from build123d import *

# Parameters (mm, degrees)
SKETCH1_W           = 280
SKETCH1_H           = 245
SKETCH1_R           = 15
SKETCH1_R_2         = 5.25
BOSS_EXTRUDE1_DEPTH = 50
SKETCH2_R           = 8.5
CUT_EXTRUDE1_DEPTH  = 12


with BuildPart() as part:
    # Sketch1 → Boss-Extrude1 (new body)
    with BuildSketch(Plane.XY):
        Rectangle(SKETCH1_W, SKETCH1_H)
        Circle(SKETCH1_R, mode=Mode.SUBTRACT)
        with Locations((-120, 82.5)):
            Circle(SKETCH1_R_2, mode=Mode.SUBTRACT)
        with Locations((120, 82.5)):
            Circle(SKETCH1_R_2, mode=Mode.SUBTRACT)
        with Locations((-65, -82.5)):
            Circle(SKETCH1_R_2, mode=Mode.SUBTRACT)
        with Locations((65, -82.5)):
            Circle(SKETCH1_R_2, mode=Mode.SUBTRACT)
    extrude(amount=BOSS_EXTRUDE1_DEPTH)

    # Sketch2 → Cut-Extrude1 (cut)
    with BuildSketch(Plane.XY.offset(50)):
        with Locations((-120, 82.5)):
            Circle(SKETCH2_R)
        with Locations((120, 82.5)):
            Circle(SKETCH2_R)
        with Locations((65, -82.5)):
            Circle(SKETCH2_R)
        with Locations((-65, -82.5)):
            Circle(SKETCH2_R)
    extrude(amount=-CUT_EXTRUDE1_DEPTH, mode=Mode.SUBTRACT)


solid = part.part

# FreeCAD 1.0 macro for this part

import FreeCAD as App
import Part
import Sketcher

V = App.Vector


def add_polygon(sketch, points):
    """Adds a closed chain of lines whose ends are joined by coincident constraints."""
    first, n = sketch.GeometryCount, len(points)
    for a, b in zip(points, points[1:] + points[:1]):
        sketch.addGeometry(Part.LineSegment(App.Vector(*a, 0), App.Vector(*b, 0)), False)
    for i in range(n):
        sketch.addConstraint(Sketcher.Constraint("Coincident", first + i, 2, first + (i + 1) % n, 1))

doc = App.newDocument("Part")
body = doc.addObject("PartDesign::Body", "Body")

# Sketch on XY plane
sketch1 = body.newObject("Sketcher::SketchObject", "Sketch")
sketch1.AttachmentSupport = (doc.getObject("XY_Plane"), [""])
sketch1.MapMode = "FlatFace"
add_polygon(sketch1, [(-140, 122.5), (-140, -122.5), (140, -122.5), (140, 122.5)])  # lines 0-3
sketch1.addGeometry(Part.Circle(V(-65, -82.5, 0), V(0, 0, 1), 5.25), False)  # 4
sketch1.addGeometry(Part.Circle(V(65, -82.5, 0), V(0, 0, 1), 5.25), False)  # 5
sketch1.addGeometry(Part.Circle(V(0, 0, 0), V(0, 0, 1), 15), False)  # 6
sketch1.addGeometry(Part.Circle(V(-120, 82.5, 0), V(0, 0, 1), 5.25), False)  # 7
sketch1.addGeometry(Part.Circle(V(120, 82.5, 0), V(0, 0, 1), 5.25), False)  # 8
sketch1.addConstraint(Sketcher.Constraint("Vertical", 0))
sketch1.addConstraint(Sketcher.Constraint("Horizontal", 1))
sketch1.addConstraint(Sketcher.Constraint("Vertical", 2))
sketch1.addConstraint(Sketcher.Constraint("Horizontal", 3))
sketch1.addConstraint(Sketcher.Constraint("Coincident", 6, 3, -1, 1))
sketch1.addConstraint(Sketcher.Constraint("Equal", 4, 5))
sketch1.addConstraint(Sketcher.Constraint("Equal", 5, 7))
sketch1.addConstraint(Sketcher.Constraint("Equal", 7, 8))
sketch1.addConstraint(Sketcher.Constraint("Symmetric", 0, 2, 2, 2, -1, 1))
sketch1.addConstraint(Sketcher.Constraint("Symmetric", 4, 3, 5, 3, -2))
sketch1.addConstraint(Sketcher.Constraint("Symmetric", 7, 3, 8, 3, -2))
sketch1.addConstraint(Sketcher.Constraint("Diameter", 6, 30.0))
sketch1.addConstraint(Sketcher.Constraint("Diameter", 4, 10.5))
sketch1.addConstraint(Sketcher.Constraint("DistanceX", 1, 1, 1, 2, 280.0))
sketch1.addConstraint(Sketcher.Constraint("DistanceY", 0, 2, 0, 1, 245.0))
sketch1.addConstraint(Sketcher.Constraint("DistanceX", 4, 3, -1, 1, 65.0))
sketch1.addConstraint(Sketcher.Constraint("DistanceX", 7, 3, -1, 1, 120.0))
sketch1.addConstraint(Sketcher.Constraint("DistanceY", 4, 3, 7, 3, 165.0))
sketch1.addConstraint(Sketcher.Constraint("DistanceY", 0, 2, 4, 3, 40.0))
pad1 = body.newObject("PartDesign::Pad", "Pad")
pad1.Profile = sketch1
pad1.Length = 50

# Sketch on XY plane
sketch2 = body.newObject("Sketcher::SketchObject", "Sketch001")
sketch2.AttachmentSupport = (doc.getObject("XY_Plane"), [""])
sketch2.MapMode = "FlatFace"
sketch2.AttachmentOffset = App.Placement(V(0, 0, 50), App.Rotation())
sketch2.addGeometry(Part.Circle(V(-120, 82.5, 0), V(0, 0, 1), 8.5), False)
sketch2.addGeometry(Part.Circle(V(120, 82.5, 0), V(0, 0, 1), 8.5), False)
sketch2.addGeometry(Part.Circle(V(65, -82.5, 0), V(0, 0, 1), 8.5), False)
sketch2.addGeometry(Part.Circle(V(-65, -82.5, 0), V(0, 0, 1), 8.5), False)
sketch2.addConstraint(Sketcher.Constraint("Equal", 0, 1))
sketch2.addConstraint(Sketcher.Constraint("Equal", 1, 2))
sketch2.addConstraint(Sketcher.Constraint("Equal", 2, 3))
sketch2.addConstraint(Sketcher.Constraint("Symmetric", 0, 3, 1, 3, -2))
sketch2.addConstraint(Sketcher.Constraint("Symmetric", 2, 3, 3, 3, -2))
sketch2.addConstraint(Sketcher.Constraint("Diameter", 0, 17.0))
sketch2.addConstraint(Sketcher.Constraint("DistanceX", 0, 3, -1, 1, 120.0))
sketch2.addConstraint(Sketcher.Constraint("DistanceX", -1, 1, 2, 3, 65.0))
sketch2.addConstraint(Sketcher.Constraint("DistanceY", 2, 3, 1, 3, 165.0))
sketch2.addConstraint(Sketcher.Constraint("DistanceY", -1, 1, 0, 3, 82.5))
pocket1 = body.newObject("PartDesign::Pocket", "Pocket")
pocket1.Profile = sketch2
pocket1.Length = 12

doc.recompute()
